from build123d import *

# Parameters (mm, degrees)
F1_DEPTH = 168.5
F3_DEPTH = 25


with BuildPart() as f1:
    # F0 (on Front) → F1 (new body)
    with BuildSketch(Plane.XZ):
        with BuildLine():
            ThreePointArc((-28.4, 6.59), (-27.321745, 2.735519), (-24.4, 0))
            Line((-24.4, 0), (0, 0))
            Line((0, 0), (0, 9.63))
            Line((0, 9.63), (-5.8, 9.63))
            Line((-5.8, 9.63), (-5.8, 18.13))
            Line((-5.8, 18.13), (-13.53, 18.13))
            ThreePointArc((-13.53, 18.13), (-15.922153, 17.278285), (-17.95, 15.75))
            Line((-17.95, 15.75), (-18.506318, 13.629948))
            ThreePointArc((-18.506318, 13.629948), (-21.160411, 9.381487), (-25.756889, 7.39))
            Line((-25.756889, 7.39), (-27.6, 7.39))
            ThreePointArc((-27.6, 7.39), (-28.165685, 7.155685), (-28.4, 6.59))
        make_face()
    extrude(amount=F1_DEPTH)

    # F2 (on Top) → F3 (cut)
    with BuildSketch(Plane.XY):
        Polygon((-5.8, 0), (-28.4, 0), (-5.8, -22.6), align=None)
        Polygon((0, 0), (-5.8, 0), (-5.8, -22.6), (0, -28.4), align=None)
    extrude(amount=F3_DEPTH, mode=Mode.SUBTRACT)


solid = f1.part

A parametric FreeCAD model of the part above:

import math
import FreeCAD as App
import Part
import Sketcher
from FreeCAD import Vector


def add_polygon(sketch, points):
    """Adds a closed chain of lines whose ends are joined by coincident constraints."""
    first, n = sketch.GeometryCount, len(points)
    for a, b in zip(points, points[1:] + points[:1]):
        sketch.addGeometry(Part.LineSegment(App.Vector(*a, 0), App.Vector(*b, 0)), False)
    for i in range(n):
        sketch.addConstraint(Sketcher.Constraint("Coincident", first + i, 2, first + (i + 1) % n, 1))

doc = App.newDocument("Part")
body = doc.addObject("PartDesign::Body", "Body")

sketch1 = body.newObject("Sketcher::SketchObject", "Sketch")
sketch1.AttachmentSupport = (doc.getObject("XZ_Plane"), [""])
sketch1.MapMode = "FlatFace"
sketch1.addGeometry([
    Part.ArcOfCircle(Part.Circle(Vector(-21, 6.6, 0), Vector(0, 0, 1), 7.4), math.radians(-180), math.radians(-117)),
    Part.LineSegment(Vector(-24.4, 0, 0), Vector(0, 0, 0)),
    Part.LineSegment(Vector(0, 0, 0), Vector(0, 9.6, 0)),
    Part.LineSegment(Vector(0, 9.6, 0), Vector(-5.8, 9.6, 0)),
    Part.LineSegment(Vector(-5.8, 9.6, 0), Vector(-5.8, 18.1, 0)),
    Part.LineSegment(Vector(-5.8, 18.1, 0), Vector(-13.5, 18.1, 0)),
    Part.ArcOfCircle(Part.Circle(Vector(-11.9, 9.9, 0), Vector(0, 0, 1), 8.4), math.radians(101), math.radians(136)),
    Part.LineSegment(Vector(-17.9, 15.8, 0), Vector(-18.5, 13.6, 0)),
    Part.ArcOfCircle(Part.Circle(Vector(-26.7, 15.8, 0), Vector(0, 0, 1), 8.4), math.radians(-84), math.radians(-15)),
    Part.LineSegment(Vector(-25.8, 7.4, 0), Vector(-27.6, 7.4, 0)),
    Part.ArcOfCircle(Part.Circle(Vector(-27.6, 6.6, 0), Vector(0, 0, 1), 0.8), math.radians(90), math.radians(180)),
], False)
sketch1.addConstraint([
    Sketcher.Constraint("Coincident", 0, 2, 1, 1),
    Sketcher.Constraint("Coincident", 1, 2, 2, 1),
    Sketcher.Constraint("Coincident", 2, 2, 3, 1),
    Sketcher.Constraint("Coincident", 3, 2, 4, 1),
    Sketcher.Constraint("Coincident", 4, 2, 5, 1),
    Sketcher.Constraint("Coincident", 5, 2, 6, 1),
    Sketcher.Constraint("Coincident", 6, 2, 7, 1),
    Sketcher.Constraint("Tangent", 7, 2, 8, 2),
    Sketcher.Constraint("Coincident", 8, 1, 9, 1),
    Sketcher.Constraint("Tangent", 9, 2, 10, 1),
    Sketcher.Constraint("Tangent", 10, 2, 0, 1),
    Sketcher.Constraint("Horizontal", 1),
    Sketcher.Constraint("Vertical", 2),
    Sketcher.Constraint("Horizontal", 3),
    Sketcher.Constraint("Vertical", 4),
    Sketcher.Constraint("Horizontal", 5),
    Sketcher.Constraint("Horizontal", 9),
    Sketcher.Constraint("Coincident", 1, 2, -1, 1),
    Sketcher.Constraint("Horizontal", 0, 3, 10, 2),
    Sketcher.Constraint("Radius", 10, 0.800001),
    Sketcher.Constraint("DistanceX", 1, 1, 1, 2, 24.4),
    Sketcher.Constraint("DistanceX", 3, 2, 3, 1, 5.8),
    Sketcher.Constraint("DistanceY", 4, 1, 4, 2, 8.5),
    Sketcher.Constraint("DistanceX", 10, 2, 0, 2, 4.0),
    Sketcher.Constraint("DistanceX", 5, 2, 5, 1, 7.73),
    Sketcher.Constraint("DistanceY", 2, 1, 2, 2, 9.63),
    Sketcher.Constraint("DistanceY", -1, 1, 0, 3, 6.590001),
    Sketcher.Constraint("DistanceX", 6, 2, -1, 1, 17.95),
    Sketcher.Constraint("DistanceY", -1, 1, 6, 2, 15.75),
    Sketcher.Constraint("Radius", 6, 8.39103),
    Sketcher.Constraint("Radius", 8, 8.427141),
    Sketcher.Constraint("DistanceX", 9, 2, 9, 1, 1.843111),
    Sketcher.Constraint("Distance", 7, 2.191828),
])
pad1 = body.newObject("PartDesign::Pad", "Pad")
pad1.Profile = sketch1
pad1.Length = 168.5

sketch2 = body.newObject("Sketcher::SketchObject", "Sketch001")
sketch2.AttachmentSupport = (doc.getObject("XY_Plane"), [""])
sketch2.MapMode = "FlatFace"
add_polygon(sketch2, [(-28, 0), (0, -28), (0, 0)])
sketch2.addConstraint([
    Sketcher.Constraint("Vertical", 1),
    Sketcher.Constraint("Horizontal", 2),
    Sketcher.Constraint("Coincident", 1, 2, -1, 1),
    Sketcher.Constraint("Equal", 2, 1),
    Sketcher.Constraint("DistanceX", 2, 2, 2, 1, 28.4),
])
pocket1 = body.newObject("PartDesign::Pocket", "Pocket")
pocket1.Profile = sketch2
pocket1.Length = 25
pocket1.Reversed = True

doc.recompute()
